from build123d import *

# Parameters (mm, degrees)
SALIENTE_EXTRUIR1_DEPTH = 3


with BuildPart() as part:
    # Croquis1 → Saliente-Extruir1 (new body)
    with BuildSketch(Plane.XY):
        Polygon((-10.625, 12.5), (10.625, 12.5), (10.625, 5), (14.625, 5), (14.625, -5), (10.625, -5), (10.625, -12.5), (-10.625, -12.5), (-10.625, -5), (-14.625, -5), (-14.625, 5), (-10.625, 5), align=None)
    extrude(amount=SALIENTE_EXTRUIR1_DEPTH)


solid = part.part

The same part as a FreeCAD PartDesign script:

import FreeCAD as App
import Part
import Sketcher

doc = App.newDocument("Part")
body = doc.addObject("PartDesign::Body", "Body")

sketch1 = body.newObject("Sketcher::SketchObject", "Sketch")
sketch1.AttachmentSupport = (doc.getObject("XY_Plane"), [""])
sketch1.MapMode = "FlatFace"
sketch1.addGeometry([
    Part.LineSegment(App.Vector(10.625, 12.5, 0), App.Vector(-10.625, 12.5, 0)),
    Part.LineSegment(App.Vector(-10.625, 12.5, 0), App.Vector(-10.625, 5, 0)),
    Part.LineSegment(App.Vector(-10.625, 5, 0), App.Vector(-14.625, 5, 0)),
    Part.LineSegment(App.Vector(-14.625, 5, 0), App.Vector(-14.625, -5, 0)),
    Part.LineSegment(App.Vector(-14.625, -5, 0), App.Vector(-10.625, -5, 0)),
    Part.LineSegment(App.Vector(-10.625, -5, 0), App.Vector(-10.625, -12.5, 0)),
    Part.LineSegment(App.Vector(-10.625, -12.5, 0), App.Vector(10.625, -12.5, 0)),
    Part.LineSegment(App.Vector(10.625, -12.5, 0), App.Vector(10.625, -5, 0)),
    Part.LineSegment(App.Vector(10.625, -5, 0), App.Vector(14.625, -5, 0)),
    Part.LineSegment(App.Vector(14.625, -5, 0), App.Vector(14.625, 5, 0)),
    Part.LineSegment(App.Vector(14.625, 5, 0), App.Vector(10.625, 5, 0)),
    Part.LineSegment(App.Vector(10.625, 5, 0), App.Vector(10.625, 12.5, 0)),
], False)
sketch1.addConstraint([
    Sketcher.Constraint("Coincident", 0, 2, 1, 1),
    Sketcher.Constraint("Coincident", 1, 2, 2, 1),
    Sketcher.Constraint("Coincident", 2, 2, 3, 1),
    Sketcher.Constraint("Coincident", 3, 2, 4, 1),
    Sketcher.Constraint("Coincident", 4, 2, 5, 1),
    Sketcher.Constraint("Coincident", 5, 2, 6, 1),
    Sketcher.Constraint("Coincident", 6, 2, 7, 1),
    Sketcher.Constraint("Coincident", 7, 2, 8, 1),
    Sketcher.Constraint("Coincident", 8, 2, 9, 1),
    Sketcher.Constraint("Coincident", 9, 2, 10, 1),
    Sketcher.Constraint("Coincident", 10, 2, 11, 1),
    Sketcher.Constraint("Coincident", 11, 2, 0, 1),
    Sketcher.Constraint("Horizontal", 0),
    Sketcher.Constraint("Vertical", 1),
    Sketcher.Constraint("Horizontal", 2),
    Sketcher.Constraint("Vertical", 3),
    Sketcher.Constraint("Horizontal", 4),
    Sketcher.Constraint("Vertical", 5),
    Sketcher.Constraint("Horizontal", 6),
    Sketcher.Constraint("Vertical", 7),
    Sketcher.Constraint("Horizontal", 8),
    Sketcher.Constraint("Vertical", 9),
    Sketcher.Constraint("Horizontal", 10),
    Sketcher.Constraint("Vertical", 11),
    Sketcher.Constraint("Symmetric", 0, 2, 6, 2, -1, 1),
    Sketcher.Constraint("Symmetric", 2, 2, 8, 2, -1, 1),
    Sketcher.Constraint("Symmetric", 4, 2, 10, 2, -1, 1),
    Sketcher.Constraint("Symmetric", 4, 2, 7, 2, -2),
    Sketcher.Constraint("DistanceX", 2, 2, 2, 1, 4.0),
    Sketcher.Constraint("DistanceY", 3, 2, 3, 1, 10.0),
    Sketcher.Constraint("DistanceY", 1, 2, 1, 1, 7.5),
    Sketcher.Constraint("DistanceX", 0, 2, 0, 1, 21.25),
])
pad1 = body.newObject("PartDesign::Pad", "Pad")
pad1.Profile = sketch1
pad1.Length = 3

doc.recompute()
